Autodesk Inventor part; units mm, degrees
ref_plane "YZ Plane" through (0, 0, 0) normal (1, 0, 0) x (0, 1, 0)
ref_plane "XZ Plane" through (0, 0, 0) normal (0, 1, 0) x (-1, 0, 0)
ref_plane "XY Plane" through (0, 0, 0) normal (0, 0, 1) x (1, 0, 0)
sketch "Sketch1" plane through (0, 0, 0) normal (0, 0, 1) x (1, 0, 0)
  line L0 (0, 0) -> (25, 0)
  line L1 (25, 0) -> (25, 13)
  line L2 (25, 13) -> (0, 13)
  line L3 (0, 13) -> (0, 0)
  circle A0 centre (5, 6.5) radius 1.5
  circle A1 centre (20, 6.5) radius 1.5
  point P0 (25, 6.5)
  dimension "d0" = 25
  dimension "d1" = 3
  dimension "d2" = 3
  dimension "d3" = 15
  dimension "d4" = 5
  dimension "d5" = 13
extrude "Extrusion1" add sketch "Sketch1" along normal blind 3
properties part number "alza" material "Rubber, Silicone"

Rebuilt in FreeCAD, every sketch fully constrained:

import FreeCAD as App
import Part
import Sketcher
Q = App.Units.Quantity


def add_polygon(sketch, points):
    """Adds a closed chain of lines whose ends are joined by coincident constraints."""
    first, n = sketch.GeometryCount, len(points)
    for a, b in zip(points, points[1:] + points[:1]):
        sketch.addGeometry(Part.LineSegment(App.Vector(*a, 0), App.Vector(*b, 0)), False)
    for i in range(n):
        sketch.addConstraint(Sketcher.Constraint("Coincident", first + i, 2, first + (i + 1) % n, 1))

doc = App.newDocument("Part")
body = doc.addObject("PartDesign::Body", "Body")

sketch1 = doc.addObject("Sketcher::SketchObject", "Sketch")
body.addObject(sketch1)
sketch1.AttachmentSupport = (doc.XY_Plane, [""])
sketch1.MapMode = "FlatFace"
add_polygon(sketch1, [(0, 13), (0, 0), (25, 0), (25, 13)])
sketch1.addGeometry(Part.Circle(App.Vector(5, 6.5, 0), App.Vector(0, 0, 1), 1.5), False)
sketch1.addGeometry(Part.Circle(App.Vector(20, 6.5, 0), App.Vector(0, 0, 1), 1.5), False)
sketch1.addConstraint([
    Sketcher.Constraint("Vertical", 0),
    Sketcher.Constraint("Horizontal", 1),
    Sketcher.Constraint("Vertical", 2),
    Sketcher.Constraint("Horizontal", 3),
    Sketcher.Constraint("Coincident", 0, 2, -1, 1),
    Sketcher.Constraint("Equal", 4, 5),
    Sketcher.Constraint("Horizontal", 4, 3, 5, 3),
    Sketcher.Constraint("Diameter", 4, Q("3 mm")),
    Sketcher.Constraint("DistanceX", 1, 1, 1, 2, Q("25 mm")),
    Sketcher.Constraint("DistanceY", 0, 2, 0, 1, Q("13 mm")),
    Sketcher.Constraint("DistanceX", -1, 1, 4, 3, Q("5 mm")),
    Sketcher.Constraint("DistanceX", 4, 3, 5, 3, Q("15 mm")),
    Sketcher.Constraint("DistanceY", -1, 1, 4, 3, Q("6.5 mm")),
])
pad1 = doc.addObject("PartDesign::Pad", "Pad")
body.addObject(pad1)
pad1.Profile = sketch1
pad1.Length = 3

doc.recompute()
